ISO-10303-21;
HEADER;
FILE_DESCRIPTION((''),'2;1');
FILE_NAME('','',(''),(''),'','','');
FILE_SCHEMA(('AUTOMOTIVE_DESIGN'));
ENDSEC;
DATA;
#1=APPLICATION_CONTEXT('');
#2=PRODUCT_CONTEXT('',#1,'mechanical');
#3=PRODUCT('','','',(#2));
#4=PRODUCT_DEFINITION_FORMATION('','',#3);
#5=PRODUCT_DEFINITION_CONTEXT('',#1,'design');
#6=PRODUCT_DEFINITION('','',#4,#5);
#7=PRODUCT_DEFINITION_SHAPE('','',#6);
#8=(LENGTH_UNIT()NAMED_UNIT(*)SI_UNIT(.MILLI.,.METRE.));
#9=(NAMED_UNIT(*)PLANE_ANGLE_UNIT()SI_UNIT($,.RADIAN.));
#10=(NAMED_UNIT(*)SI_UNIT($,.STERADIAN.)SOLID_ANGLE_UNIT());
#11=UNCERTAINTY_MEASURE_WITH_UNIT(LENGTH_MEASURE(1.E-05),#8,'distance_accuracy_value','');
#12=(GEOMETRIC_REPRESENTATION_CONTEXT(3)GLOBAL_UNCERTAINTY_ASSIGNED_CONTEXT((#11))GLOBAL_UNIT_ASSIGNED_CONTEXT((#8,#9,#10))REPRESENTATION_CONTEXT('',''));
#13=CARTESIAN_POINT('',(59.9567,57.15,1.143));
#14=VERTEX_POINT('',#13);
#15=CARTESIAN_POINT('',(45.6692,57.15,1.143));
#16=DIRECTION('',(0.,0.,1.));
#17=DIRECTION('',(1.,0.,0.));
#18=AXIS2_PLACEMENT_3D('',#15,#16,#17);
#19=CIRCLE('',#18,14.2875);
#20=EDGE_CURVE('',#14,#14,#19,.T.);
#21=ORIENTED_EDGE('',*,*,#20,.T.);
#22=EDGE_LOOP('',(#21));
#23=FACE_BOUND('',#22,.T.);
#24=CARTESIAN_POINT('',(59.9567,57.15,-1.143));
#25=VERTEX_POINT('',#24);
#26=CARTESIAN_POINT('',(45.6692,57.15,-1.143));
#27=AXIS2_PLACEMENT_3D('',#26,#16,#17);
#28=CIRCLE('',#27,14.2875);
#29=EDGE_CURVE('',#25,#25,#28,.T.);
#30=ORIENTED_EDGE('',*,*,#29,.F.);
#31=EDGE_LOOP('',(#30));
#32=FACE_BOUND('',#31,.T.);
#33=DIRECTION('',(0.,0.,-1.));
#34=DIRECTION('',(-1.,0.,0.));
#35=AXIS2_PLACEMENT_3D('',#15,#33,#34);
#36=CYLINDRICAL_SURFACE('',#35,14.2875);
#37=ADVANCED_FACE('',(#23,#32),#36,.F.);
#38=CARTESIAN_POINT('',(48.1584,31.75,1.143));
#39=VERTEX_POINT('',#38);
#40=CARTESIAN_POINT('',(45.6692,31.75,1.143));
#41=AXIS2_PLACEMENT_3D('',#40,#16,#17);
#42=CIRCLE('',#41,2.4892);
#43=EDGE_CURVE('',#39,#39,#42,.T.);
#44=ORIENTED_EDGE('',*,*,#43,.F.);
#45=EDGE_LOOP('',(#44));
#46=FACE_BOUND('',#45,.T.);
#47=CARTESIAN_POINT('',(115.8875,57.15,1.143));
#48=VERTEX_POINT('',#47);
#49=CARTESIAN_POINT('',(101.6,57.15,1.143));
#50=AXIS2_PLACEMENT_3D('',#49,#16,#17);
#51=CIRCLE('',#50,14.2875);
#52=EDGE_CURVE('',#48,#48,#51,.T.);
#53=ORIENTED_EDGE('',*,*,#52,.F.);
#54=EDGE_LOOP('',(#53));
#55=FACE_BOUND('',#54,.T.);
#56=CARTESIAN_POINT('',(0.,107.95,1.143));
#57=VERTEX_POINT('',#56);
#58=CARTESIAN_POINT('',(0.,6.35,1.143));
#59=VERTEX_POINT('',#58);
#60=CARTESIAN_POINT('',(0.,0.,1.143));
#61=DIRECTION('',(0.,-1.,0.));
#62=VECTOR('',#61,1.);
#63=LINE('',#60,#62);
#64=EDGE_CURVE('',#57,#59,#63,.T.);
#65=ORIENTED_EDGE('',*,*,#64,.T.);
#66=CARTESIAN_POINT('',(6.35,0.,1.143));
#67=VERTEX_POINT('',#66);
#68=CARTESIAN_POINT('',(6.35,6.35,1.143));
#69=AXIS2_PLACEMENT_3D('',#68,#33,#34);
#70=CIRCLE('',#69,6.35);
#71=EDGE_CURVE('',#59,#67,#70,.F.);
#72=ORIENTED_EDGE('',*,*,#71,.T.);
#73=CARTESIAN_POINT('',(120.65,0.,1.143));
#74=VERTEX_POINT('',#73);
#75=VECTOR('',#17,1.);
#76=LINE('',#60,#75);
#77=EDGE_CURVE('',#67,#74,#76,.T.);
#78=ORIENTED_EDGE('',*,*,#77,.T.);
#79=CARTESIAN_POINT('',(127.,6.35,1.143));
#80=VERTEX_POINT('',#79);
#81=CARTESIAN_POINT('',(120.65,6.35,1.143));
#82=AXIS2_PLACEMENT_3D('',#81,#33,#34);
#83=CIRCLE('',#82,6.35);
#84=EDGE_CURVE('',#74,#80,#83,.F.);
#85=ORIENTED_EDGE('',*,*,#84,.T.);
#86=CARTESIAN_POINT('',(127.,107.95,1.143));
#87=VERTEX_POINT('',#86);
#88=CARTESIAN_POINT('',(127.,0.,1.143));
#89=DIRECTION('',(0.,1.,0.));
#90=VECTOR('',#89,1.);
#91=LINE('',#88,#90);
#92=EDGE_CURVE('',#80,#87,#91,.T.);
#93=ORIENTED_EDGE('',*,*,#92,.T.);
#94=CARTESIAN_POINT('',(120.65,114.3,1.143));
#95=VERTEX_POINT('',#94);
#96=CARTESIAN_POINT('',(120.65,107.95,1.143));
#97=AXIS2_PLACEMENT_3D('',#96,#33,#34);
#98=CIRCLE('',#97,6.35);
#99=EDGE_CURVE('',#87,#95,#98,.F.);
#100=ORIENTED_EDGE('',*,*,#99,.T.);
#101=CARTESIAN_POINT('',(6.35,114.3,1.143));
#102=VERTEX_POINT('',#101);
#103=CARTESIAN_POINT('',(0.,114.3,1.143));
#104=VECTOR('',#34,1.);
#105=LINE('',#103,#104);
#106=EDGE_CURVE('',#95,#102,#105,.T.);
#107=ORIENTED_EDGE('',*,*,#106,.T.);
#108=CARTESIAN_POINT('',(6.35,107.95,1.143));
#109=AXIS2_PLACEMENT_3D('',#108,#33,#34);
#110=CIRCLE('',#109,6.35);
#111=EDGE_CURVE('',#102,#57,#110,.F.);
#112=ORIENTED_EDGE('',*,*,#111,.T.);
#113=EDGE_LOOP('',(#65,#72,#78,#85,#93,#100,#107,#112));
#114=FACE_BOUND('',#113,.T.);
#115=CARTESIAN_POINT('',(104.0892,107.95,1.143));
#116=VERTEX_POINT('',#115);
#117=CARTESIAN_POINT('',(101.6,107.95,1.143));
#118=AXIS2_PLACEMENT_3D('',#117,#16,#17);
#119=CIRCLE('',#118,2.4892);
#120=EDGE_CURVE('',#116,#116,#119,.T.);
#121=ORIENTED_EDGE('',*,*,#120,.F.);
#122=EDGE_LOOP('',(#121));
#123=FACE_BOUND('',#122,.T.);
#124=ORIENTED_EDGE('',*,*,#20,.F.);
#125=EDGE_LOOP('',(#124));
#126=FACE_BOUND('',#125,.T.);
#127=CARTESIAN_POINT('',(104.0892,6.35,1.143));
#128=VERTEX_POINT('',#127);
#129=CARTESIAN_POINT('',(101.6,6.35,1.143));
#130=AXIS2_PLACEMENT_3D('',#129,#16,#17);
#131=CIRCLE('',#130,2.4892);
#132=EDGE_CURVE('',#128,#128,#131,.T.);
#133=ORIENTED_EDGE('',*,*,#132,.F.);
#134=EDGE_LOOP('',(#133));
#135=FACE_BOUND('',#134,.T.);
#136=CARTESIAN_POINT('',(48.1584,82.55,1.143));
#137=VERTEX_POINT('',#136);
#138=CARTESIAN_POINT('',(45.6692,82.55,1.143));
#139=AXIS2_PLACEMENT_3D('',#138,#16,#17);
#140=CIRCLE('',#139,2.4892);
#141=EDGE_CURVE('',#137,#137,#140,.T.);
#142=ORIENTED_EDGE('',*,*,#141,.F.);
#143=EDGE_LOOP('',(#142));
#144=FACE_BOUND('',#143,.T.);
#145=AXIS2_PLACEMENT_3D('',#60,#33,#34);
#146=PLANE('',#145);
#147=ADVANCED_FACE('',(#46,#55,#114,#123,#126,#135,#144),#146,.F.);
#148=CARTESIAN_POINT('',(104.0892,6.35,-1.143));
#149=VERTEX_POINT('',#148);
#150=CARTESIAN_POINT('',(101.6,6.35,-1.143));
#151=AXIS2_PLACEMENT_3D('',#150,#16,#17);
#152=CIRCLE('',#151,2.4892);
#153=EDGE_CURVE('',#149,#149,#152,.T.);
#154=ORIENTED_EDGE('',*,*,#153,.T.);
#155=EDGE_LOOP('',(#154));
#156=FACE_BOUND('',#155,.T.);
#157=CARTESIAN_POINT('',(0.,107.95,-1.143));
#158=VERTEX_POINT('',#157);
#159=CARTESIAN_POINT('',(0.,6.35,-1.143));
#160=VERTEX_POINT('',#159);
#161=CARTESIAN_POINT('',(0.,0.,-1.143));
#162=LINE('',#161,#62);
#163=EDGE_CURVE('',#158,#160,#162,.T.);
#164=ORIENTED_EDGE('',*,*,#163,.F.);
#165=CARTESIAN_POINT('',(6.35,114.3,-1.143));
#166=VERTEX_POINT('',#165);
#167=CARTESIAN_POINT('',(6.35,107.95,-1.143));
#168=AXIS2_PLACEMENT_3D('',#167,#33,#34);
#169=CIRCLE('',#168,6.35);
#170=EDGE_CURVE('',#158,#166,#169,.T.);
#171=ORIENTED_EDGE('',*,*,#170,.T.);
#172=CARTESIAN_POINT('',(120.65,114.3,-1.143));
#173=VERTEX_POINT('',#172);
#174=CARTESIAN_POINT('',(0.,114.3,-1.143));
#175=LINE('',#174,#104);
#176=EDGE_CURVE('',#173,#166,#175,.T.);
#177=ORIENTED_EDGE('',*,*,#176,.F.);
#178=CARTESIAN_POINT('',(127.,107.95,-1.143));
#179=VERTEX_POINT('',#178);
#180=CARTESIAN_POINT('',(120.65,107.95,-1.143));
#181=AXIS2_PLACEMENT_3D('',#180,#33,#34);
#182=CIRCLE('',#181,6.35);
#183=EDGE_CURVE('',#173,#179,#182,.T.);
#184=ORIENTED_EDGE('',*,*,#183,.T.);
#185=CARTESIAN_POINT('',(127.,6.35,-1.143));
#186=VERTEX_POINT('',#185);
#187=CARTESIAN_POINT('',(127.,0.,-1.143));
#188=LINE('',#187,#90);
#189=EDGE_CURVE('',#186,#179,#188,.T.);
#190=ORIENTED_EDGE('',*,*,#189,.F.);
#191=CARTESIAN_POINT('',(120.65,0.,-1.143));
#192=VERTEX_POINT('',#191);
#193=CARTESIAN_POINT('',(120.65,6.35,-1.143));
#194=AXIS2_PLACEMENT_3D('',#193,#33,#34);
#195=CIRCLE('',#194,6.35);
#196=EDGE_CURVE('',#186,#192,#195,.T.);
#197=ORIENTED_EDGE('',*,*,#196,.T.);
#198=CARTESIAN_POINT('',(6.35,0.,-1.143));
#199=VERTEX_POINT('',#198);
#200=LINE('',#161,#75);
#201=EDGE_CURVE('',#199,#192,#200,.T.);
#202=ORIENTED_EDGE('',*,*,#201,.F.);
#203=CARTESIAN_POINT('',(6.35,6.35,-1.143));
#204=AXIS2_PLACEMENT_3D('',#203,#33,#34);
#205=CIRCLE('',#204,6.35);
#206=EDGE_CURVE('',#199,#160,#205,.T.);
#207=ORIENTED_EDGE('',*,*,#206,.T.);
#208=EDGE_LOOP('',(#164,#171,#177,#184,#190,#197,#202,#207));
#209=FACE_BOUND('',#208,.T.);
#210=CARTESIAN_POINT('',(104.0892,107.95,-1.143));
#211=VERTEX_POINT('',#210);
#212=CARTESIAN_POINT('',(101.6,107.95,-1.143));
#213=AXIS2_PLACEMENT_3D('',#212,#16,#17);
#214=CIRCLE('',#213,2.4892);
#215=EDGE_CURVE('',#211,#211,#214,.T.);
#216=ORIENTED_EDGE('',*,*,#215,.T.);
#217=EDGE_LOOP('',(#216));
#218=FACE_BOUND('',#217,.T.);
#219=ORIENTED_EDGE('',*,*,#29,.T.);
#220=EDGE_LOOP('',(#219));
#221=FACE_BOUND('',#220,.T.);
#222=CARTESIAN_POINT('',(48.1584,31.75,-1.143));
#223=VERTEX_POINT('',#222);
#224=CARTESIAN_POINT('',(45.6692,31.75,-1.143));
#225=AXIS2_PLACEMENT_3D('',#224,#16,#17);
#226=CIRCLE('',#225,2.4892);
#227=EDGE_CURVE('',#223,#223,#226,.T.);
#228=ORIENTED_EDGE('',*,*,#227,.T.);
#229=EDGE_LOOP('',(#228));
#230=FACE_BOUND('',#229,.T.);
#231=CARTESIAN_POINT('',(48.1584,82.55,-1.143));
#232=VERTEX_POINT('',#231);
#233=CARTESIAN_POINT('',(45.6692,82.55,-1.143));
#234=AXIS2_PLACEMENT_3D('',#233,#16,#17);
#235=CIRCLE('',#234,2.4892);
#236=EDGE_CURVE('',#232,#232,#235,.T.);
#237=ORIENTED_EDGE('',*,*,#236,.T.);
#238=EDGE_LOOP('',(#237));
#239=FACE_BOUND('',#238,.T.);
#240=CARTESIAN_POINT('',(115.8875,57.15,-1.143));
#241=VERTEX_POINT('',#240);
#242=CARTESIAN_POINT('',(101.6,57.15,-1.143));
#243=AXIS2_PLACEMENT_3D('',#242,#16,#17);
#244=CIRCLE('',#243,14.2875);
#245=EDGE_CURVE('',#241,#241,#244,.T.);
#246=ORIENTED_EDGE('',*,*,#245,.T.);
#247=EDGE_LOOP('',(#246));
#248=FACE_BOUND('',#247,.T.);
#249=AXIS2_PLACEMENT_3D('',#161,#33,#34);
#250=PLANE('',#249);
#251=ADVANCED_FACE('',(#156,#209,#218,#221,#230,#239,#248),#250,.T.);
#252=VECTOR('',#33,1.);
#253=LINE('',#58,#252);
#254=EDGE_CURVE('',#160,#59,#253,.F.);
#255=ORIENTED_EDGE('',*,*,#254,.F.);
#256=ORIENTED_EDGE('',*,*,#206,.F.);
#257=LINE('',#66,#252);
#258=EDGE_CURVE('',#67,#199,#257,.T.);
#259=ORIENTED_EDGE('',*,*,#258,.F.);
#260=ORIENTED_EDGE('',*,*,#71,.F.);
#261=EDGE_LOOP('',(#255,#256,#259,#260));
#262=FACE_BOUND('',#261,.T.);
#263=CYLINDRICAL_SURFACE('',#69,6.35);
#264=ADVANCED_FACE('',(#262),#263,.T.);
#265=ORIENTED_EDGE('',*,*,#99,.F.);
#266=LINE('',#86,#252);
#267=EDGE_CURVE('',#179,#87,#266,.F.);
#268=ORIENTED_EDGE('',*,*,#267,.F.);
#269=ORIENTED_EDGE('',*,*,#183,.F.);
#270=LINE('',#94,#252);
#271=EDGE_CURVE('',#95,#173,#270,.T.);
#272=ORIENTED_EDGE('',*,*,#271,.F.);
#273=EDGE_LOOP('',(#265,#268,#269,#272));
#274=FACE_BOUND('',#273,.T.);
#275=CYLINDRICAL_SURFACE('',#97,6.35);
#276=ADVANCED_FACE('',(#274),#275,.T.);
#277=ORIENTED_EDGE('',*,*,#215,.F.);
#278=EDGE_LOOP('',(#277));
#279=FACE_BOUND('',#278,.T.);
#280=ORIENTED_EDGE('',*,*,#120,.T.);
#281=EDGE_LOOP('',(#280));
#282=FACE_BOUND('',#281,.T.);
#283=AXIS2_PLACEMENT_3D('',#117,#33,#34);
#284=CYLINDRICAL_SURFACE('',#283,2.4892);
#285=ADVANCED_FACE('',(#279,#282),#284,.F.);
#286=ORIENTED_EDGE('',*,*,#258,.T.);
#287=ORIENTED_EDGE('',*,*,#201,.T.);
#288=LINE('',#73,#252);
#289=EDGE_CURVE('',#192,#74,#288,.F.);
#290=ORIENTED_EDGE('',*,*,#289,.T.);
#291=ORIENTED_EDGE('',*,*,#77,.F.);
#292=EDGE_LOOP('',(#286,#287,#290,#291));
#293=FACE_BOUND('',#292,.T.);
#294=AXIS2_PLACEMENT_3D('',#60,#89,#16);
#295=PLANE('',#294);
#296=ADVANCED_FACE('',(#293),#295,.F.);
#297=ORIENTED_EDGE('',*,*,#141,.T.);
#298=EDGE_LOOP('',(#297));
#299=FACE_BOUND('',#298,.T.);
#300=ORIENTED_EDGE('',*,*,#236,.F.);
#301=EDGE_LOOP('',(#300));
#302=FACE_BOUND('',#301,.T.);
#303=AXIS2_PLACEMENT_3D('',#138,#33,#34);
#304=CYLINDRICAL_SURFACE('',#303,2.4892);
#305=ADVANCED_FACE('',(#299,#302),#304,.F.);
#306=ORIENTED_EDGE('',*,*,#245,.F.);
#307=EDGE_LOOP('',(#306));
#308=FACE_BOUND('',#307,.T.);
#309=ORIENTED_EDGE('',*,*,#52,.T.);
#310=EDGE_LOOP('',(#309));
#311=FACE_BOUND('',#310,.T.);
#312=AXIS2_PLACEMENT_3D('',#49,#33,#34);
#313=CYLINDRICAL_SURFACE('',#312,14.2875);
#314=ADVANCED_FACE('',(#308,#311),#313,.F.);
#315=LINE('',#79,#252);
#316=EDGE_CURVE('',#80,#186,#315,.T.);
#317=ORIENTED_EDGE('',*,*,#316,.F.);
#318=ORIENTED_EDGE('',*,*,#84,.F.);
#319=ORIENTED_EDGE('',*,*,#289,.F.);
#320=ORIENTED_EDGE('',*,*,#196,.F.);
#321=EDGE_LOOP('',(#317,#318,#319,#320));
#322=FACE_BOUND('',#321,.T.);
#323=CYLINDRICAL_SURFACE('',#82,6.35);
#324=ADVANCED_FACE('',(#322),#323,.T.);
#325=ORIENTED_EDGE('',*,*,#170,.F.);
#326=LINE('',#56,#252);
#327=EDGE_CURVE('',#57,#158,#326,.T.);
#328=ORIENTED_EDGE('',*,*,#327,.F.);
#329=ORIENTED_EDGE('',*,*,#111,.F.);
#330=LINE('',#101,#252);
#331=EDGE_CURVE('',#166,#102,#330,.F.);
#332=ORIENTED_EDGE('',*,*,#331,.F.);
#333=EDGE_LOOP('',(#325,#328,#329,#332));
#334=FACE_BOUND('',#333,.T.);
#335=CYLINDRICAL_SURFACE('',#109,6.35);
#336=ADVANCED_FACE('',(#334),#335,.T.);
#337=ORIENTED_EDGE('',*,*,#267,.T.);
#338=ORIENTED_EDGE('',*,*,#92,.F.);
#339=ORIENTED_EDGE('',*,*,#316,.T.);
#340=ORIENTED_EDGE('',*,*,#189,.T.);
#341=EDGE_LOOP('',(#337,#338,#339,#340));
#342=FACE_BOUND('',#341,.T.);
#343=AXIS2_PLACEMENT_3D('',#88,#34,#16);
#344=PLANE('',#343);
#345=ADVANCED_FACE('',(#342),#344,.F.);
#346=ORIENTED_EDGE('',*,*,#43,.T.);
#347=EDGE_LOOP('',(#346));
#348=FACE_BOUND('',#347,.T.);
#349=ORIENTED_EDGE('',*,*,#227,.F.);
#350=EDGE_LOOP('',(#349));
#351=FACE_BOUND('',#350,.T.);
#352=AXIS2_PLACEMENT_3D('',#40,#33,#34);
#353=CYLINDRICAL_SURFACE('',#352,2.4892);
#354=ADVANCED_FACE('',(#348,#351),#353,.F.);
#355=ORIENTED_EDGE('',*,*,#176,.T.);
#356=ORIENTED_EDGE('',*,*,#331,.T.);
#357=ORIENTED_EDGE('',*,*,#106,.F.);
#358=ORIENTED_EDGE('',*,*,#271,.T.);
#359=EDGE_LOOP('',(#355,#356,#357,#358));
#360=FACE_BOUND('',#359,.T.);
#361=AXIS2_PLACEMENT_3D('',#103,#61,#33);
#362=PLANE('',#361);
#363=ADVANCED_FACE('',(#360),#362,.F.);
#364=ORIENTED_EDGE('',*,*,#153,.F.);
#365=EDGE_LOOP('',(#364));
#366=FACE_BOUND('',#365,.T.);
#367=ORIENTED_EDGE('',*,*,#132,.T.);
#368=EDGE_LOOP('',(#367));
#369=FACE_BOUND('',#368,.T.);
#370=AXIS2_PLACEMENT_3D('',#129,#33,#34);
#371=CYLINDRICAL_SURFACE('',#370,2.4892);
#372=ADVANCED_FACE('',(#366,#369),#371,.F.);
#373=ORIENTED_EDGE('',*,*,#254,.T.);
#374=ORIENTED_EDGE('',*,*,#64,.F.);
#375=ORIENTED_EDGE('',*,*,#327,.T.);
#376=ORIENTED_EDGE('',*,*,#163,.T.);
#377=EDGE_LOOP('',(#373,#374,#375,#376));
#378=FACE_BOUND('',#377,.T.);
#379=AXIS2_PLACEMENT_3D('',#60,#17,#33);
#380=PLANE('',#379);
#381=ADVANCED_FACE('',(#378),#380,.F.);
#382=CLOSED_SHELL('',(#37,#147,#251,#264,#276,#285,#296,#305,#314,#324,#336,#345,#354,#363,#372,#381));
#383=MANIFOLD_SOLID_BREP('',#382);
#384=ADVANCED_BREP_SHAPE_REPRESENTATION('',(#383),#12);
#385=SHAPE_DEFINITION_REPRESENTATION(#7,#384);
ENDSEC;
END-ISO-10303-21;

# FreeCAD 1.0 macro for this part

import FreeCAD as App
import Part
import Sketcher

V = App.Vector
Q = App.Units.Quantity


def edges_at(feature, points):
    """Names of the edges that pass closest to the given points."""
    edges = feature.Shape.Edges
    near = lambda p: min(range(len(edges)), key=lambda i: edges[i].distToShape(Part.Vertex(*p))[0])
    return sorted({f"Edge{near(p) + 1}" for p in points})


def add_polygon(sketch, points):
    """Adds a closed chain of lines whose ends are joined by coincident constraints."""
    first, n = sketch.GeometryCount, len(points)
    for a, b in zip(points, points[1:] + points[:1]):
        sketch.addGeometry(Part.LineSegment(App.Vector(*a, 0), App.Vector(*b, 0)), False)
    for i in range(n):
        sketch.addConstraint(Sketcher.Constraint("Coincident", first + i, 2, first + (i + 1) % n, 1))

doc = App.newDocument("Part")
body = doc.addObject("PartDesign::Body", "Body")

sketch1 = body.newObject("Sketcher::SketchObject", "Sketch")
sketch1.AttachmentSupport = (doc.getObject("XY_Plane"), [""])
sketch1.MapMode = "FlatFace"
add_polygon(sketch1, [(0, 114.3), (0, 0), (127, 0), (127, 114.3)])
sketch1.addGeometry(Part.Circle(V(45.7, 31.8, 0), V(0, 0, 1), 2.5), False)
sketch1.addGeometry(Part.Circle(V(101.6, 6.3, 0), V(0, 0, 1), 2.5), False)
sketch1.addGeometry(Part.Circle(V(45.7, 57.1, 0), V(0, 0, 1), 14.3), False)
sketch1.addGeometry(Part.Circle(V(45.7, 82.5, 0), V(0, 0, 1), 2.5), False)
sketch1.addGeometry(Part.Circle(V(101.6, 57.1, 0), V(0, 0, 1), 14.3), False)
sketch1.addGeometry(Part.Circle(V(101.6, 108, 0), V(0, 0, 1), 2.5), False)
sketch1.addConstraint([
    Sketcher.Constraint("Vertical", 0),
    Sketcher.Constraint("Horizontal", 1),
    Sketcher.Constraint("Vertical", 2),
    Sketcher.Constraint("Horizontal", 3),
    Sketcher.Constraint("Coincident", 0, 2, -1, 1),
    Sketcher.Constraint("Equal", 4, 5),
    Sketcher.Constraint("Equal", 5, 7),
    Sketcher.Constraint("Equal", 6, 8),
    Sketcher.Constraint("Equal", 7, 9),
    Sketcher.Constraint("Horizontal", 6, 3, 8, 3),
    Sketcher.Constraint("Vertical", 4, 3, 6, 3),
    Sketcher.Constraint("Vertical", 6, 3, 7, 3),
    Sketcher.Constraint("Vertical", 5, 3, 8, 3),
    Sketcher.Constraint("Vertical", 8, 3, 9, 3),
    Sketcher.Constraint("DistanceX", 1, 1, 1, 2, Q("5 in")),
    Sketcher.Constraint("Diameter", 4, Q("0.196 in")),
    Sketcher.Constraint("Diameter", 6, Q("1.125 in")),
    Sketcher.Constraint("DistanceY", 0, 2, 0, 1, Q("4.5 in")),
    Sketcher.Constraint("DistanceX", -1, 1, 5, 3, Q("4 in")),
    Sketcher.Constraint("DistanceY", 5, 3, 4, 3, Q("1 in")),
    Sketcher.Constraint("DistanceY", 4, 3, 6, 3, Q("1 in")),
    Sketcher.Constraint("DistanceY", 6, 3, 7, 3, Q("1 in")),
    Sketcher.Constraint("DistanceY", 8, 3, 9, 3, Q("2 in")),
    Sketcher.Constraint("DistanceY", -1, 1, 4, 3, Q("1.25 in")),
    Sketcher.Constraint("DistanceX", -1, 1, 4, 3, Q("1.798 in")),
])
pad1 = body.newObject("PartDesign::Pad", "Pad")
pad1.Profile = sketch1
pad1.Length = Q("0.09 in")
pad1.Midplane = True
doc.recompute()

fillet = body.newObject("PartDesign::Fillet", "Fillet")
fillet.Base = (pad1, edges_at(pad1, [
    (0, 114.3, 0),
    (127, 114.3, 0),
    (127, 0, 0),
    (0, 0, 0),
]))
fillet.Radius = Q("0.25 in")

doc.recompute()
